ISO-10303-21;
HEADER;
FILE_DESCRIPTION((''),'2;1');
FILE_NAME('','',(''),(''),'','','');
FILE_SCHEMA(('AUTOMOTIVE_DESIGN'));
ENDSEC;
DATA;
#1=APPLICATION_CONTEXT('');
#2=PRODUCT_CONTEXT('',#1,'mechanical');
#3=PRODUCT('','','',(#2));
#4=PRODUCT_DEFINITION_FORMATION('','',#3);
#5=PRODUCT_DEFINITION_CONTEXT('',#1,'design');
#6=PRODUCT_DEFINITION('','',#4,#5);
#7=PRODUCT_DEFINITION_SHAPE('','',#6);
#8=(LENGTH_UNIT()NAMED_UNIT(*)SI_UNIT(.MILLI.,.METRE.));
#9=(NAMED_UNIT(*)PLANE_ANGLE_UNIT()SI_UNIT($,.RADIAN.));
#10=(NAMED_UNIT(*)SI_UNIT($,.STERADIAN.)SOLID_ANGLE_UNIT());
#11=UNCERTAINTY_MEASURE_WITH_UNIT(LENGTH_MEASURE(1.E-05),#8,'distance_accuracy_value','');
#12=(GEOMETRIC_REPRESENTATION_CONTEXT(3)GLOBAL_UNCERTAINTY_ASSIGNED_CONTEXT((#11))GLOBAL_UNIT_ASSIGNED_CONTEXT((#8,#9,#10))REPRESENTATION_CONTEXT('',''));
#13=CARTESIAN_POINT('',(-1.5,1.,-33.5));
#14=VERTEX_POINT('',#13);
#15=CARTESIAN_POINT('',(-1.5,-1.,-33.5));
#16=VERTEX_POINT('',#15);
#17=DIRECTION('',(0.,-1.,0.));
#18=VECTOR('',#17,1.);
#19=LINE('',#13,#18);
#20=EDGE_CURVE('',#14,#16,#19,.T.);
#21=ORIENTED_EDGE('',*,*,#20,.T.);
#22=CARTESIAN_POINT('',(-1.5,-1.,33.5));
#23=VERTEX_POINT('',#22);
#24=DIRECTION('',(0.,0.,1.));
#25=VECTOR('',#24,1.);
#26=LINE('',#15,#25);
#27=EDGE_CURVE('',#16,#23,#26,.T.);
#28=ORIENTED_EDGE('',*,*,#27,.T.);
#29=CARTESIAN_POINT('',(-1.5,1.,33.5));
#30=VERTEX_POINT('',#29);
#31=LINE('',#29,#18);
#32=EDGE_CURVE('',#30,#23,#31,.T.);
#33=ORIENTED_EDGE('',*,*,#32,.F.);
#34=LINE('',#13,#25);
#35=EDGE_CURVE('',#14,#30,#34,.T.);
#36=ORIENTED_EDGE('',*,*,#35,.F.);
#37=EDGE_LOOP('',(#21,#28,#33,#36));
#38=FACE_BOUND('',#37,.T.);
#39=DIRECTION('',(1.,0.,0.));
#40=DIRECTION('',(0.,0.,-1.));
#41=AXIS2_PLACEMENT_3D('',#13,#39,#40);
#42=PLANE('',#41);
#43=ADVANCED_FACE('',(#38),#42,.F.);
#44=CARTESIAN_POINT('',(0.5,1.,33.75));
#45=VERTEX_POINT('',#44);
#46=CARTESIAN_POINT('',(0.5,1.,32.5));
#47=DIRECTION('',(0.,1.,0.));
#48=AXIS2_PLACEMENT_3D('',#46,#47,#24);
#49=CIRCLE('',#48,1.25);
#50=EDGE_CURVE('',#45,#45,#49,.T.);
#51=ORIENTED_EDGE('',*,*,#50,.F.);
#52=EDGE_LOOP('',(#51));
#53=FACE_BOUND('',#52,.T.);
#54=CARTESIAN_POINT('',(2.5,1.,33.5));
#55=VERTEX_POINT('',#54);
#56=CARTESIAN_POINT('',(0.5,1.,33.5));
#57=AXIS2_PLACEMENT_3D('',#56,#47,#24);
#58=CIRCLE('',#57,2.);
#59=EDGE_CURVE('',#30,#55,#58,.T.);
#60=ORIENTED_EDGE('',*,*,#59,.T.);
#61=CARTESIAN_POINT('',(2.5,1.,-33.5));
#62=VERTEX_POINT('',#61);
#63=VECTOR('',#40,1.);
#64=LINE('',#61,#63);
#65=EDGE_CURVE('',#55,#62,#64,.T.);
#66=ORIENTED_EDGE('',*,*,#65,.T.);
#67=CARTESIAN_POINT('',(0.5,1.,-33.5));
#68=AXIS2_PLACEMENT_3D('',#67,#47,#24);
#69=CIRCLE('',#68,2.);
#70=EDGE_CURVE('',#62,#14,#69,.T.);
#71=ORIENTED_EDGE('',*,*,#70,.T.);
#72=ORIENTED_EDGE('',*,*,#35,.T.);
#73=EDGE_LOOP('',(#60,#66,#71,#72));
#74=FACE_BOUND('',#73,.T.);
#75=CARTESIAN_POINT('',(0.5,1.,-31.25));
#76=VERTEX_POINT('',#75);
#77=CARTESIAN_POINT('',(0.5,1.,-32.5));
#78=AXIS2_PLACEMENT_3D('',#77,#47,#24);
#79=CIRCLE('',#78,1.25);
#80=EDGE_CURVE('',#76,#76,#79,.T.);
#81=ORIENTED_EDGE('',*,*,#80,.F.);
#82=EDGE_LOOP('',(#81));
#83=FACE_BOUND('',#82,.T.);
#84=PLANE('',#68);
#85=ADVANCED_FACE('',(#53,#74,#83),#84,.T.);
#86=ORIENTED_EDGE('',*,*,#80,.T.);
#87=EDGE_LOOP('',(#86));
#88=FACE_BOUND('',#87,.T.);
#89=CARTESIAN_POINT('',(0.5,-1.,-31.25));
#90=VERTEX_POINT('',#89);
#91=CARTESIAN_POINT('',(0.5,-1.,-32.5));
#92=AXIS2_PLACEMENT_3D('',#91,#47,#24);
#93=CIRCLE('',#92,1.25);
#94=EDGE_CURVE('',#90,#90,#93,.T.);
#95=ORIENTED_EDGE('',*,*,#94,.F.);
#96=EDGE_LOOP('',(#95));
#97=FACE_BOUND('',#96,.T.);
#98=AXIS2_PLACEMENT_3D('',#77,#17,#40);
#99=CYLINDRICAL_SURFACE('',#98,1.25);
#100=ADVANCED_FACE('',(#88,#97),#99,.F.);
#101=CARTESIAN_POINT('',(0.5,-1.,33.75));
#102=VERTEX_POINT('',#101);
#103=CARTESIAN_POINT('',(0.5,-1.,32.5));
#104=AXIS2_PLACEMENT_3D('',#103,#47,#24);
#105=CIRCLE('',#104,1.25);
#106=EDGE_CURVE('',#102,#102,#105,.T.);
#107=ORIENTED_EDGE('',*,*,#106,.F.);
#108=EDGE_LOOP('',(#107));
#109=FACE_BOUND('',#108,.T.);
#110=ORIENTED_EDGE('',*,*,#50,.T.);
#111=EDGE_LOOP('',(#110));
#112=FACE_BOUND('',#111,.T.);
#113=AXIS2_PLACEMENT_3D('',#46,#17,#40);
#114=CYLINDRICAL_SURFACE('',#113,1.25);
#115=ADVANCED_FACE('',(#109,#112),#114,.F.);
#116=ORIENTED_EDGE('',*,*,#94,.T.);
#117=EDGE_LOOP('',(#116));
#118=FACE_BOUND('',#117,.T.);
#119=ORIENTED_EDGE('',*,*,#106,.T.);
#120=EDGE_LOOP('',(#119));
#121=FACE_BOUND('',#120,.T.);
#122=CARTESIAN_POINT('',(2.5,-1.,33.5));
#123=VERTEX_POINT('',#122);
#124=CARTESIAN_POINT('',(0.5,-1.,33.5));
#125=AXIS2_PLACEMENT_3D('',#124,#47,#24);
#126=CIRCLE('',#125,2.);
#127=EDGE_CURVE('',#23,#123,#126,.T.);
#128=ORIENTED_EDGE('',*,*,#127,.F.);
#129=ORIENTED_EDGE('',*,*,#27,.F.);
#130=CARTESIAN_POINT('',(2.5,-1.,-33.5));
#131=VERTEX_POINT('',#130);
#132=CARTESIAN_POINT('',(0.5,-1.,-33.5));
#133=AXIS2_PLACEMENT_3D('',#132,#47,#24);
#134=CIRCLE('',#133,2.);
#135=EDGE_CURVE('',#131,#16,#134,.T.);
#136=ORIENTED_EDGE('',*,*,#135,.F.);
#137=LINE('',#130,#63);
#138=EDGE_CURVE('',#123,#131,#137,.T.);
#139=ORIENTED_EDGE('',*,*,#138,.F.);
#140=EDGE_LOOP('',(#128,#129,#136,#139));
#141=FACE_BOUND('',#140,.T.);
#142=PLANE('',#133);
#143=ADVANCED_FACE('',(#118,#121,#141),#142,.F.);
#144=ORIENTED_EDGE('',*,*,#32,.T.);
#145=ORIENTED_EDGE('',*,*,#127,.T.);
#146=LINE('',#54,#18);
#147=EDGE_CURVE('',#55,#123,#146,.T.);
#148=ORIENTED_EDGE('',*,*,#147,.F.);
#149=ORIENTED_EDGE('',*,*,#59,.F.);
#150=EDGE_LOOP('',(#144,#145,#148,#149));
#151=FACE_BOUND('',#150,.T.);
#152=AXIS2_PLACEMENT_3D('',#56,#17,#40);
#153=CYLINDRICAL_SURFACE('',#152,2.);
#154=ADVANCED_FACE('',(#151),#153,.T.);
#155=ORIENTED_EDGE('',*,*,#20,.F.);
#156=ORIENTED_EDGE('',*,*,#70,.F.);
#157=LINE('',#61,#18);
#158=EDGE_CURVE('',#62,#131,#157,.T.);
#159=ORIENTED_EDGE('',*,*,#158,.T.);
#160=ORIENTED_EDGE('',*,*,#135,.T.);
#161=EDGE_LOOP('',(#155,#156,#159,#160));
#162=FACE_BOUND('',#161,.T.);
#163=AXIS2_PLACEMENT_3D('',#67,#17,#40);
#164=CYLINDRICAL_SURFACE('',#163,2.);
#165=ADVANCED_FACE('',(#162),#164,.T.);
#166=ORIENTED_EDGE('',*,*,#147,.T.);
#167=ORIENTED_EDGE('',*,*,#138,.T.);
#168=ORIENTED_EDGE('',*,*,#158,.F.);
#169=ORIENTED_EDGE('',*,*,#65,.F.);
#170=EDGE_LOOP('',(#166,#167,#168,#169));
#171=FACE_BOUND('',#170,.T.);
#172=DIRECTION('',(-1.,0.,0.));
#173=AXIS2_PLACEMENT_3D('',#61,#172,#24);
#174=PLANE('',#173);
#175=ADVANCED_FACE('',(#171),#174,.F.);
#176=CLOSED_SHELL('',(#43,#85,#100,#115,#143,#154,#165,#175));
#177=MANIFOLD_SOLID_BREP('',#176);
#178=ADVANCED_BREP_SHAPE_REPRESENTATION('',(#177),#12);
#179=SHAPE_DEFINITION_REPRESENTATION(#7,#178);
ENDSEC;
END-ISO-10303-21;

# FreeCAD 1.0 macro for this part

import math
import FreeCAD as App
import Part
import Sketcher
from FreeCAD import Vector

doc = App.newDocument("Part")
body = doc.addObject("PartDesign::Body", "Body")

# Sketch on XZ plane
sketch1 = doc.addObject("Sketcher::SketchObject", "Sketch")
body.addObject(sketch1)
sketch1.AttachmentSupport = (doc.XZ_Plane, [""])
sketch1.MapMode = "FlatFace"
sketch1.addGeometry([
    Part.LineSegment(Vector(-1.5, -33.5, 0), Vector(-1.5, 33.5, 0)),  # 0
    Part.ArcOfCircle(Part.Circle(Vector(0.5, 33.5, 0), Vector(0, 0, 1), 2), math.radians(0), math.radians(180)),  # 1
    Part.LineSegment(Vector(2.5, 33.5, 0), Vector(2.5, -33.5, 0)),  # 2
    Part.ArcOfCircle(Part.Circle(Vector(0.5, -33.5, 0), Vector(0, 0, 1), 2), math.radians(180), math.radians(360)),  # 3
    Part.Circle(Vector(0.5, 32.5, 0), Vector(0, 0, 1), 1.2),  # 4
    Part.Circle(Vector(0.5, -32.5, 0), Vector(0, 0, 1), 1.2),  # 5
], False)
sketch1.addConstraint([
    Sketcher.Constraint("Tangent", 0, 2, 1, 2),
    Sketcher.Constraint("Tangent", 1, 1, 2, 1),
    Sketcher.Constraint("Tangent", 2, 2, 3, 2),
    Sketcher.Constraint("Tangent", 3, 1, 0, 1),
    Sketcher.Constraint("Vertical", 0),
    Sketcher.Constraint("Vertical", 2),
    Sketcher.Constraint("Equal", 4, 5),
    Sketcher.Constraint("Symmetric", 4, 3, 5, 3, -1),
    Sketcher.Constraint("Vertical", 3, 3, 4, 3),
    Sketcher.Constraint("Radius", 1, 2.0),
    Sketcher.Constraint("Diameter", 4, 2.5),
    Sketcher.Constraint("DistanceY", 0, 1, 0, 2, 67.0),
    Sketcher.Constraint("DistanceY", 4, 3, 1, 3, 1.0),
    Sketcher.Constraint("DistanceY", 3, 3, 5, 3, 1.0),
    Sketcher.Constraint("DistanceX", -1, 1, 1, 3, 0.5),
])
pad1 = doc.addObject("PartDesign::Pad", "Pad")
body.addObject(pad1)
pad1.Profile = sketch1
pad1.Length = 2
pad1.Midplane = True

doc.recompute()
